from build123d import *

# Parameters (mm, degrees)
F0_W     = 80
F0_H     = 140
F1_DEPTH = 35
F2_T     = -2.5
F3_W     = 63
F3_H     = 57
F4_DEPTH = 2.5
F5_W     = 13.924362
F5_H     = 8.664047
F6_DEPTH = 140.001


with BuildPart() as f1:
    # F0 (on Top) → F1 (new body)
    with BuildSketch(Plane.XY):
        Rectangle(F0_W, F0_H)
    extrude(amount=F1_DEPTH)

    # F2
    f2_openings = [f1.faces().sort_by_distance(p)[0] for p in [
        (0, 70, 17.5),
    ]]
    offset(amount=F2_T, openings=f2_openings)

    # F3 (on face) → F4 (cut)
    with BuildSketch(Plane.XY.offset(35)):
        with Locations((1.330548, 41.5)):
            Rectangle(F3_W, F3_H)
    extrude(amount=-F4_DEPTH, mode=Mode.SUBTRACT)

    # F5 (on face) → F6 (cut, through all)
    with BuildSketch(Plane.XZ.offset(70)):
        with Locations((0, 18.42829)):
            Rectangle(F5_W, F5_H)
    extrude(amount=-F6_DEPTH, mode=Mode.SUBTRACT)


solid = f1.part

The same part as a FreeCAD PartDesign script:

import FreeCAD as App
import Part
import Sketcher

V = App.Vector


def faces_at(feature, points):
    """Names of the faces that lie closest to the given points."""
    faces = feature.Shape.Faces
    near = lambda p: min(range(len(faces)), key=lambda i: faces[i].distToShape(Part.Vertex(*p))[0])
    return sorted({f"Face{near(p) + 1}" for p in points})

doc = App.newDocument("Part")
body = doc.addObject("PartDesign::Body", "Body")

sketch1 = body.newObject("Sketcher::SketchObject", "Sketch")
sketch1.AttachmentSupport = (doc.getObject("XY_Plane"), [""])
sketch1.MapMode = "FlatFace"
sketch1.addGeometry([
    Part.LineSegment(V(-40, 70, 0), V(-40, -70, 0)),
    Part.LineSegment(V(-40, -70, 0), V(40, -70, 0)),
    Part.LineSegment(V(40, -70, 0), V(40, 70, 0)),
    Part.LineSegment(V(40, 70, 0), V(-40, 70, 0)),
], False)
sketch1.addConstraint([
    Sketcher.Constraint("Coincident", 0, 2, 1, 1),
    Sketcher.Constraint("Coincident", 1, 2, 2, 1),
    Sketcher.Constraint("Coincident", 2, 2, 3, 1),
    Sketcher.Constraint("Coincident", 3, 2, 0, 1),
    Sketcher.Constraint("Vertical", 0),
    Sketcher.Constraint("Horizontal", 1),
    Sketcher.Constraint("Vertical", 2),
    Sketcher.Constraint("Horizontal", 3),
    Sketcher.Constraint("Symmetric", 0, 2, 2, 2, -1, 1),
    Sketcher.Constraint("DistanceX", 1, 1, 1, 2, 80.0),
    Sketcher.Constraint("DistanceY", 0, 2, 0, 1, 140.0),
])
pad1 = body.newObject("PartDesign::Pad", "Pad")
pad1.Profile = sketch1
pad1.Length = 35
doc.recompute()

thickness = body.newObject("PartDesign::Thickness", "Thickness")
thickness.Base = (pad1, faces_at(pad1, [(0, 70, 17.5)]))
thickness.Value = 2.5
thickness.Reversed = True
thickness.Join = "Arc"

sketch2 = body.newObject("Sketcher::SketchObject", "Sketch001")
sketch2.AttachmentSupport = (doc.getObject("XY_Plane"), [""])
sketch2.MapMode = "FlatFace"
sketch2.AttachmentOffset = App.Placement(V(0, 0, 35), App.Rotation())
sketch2.addGeometry([
    Part.LineSegment(V(-30, 70, 0), V(-30, 13, 0)),
    Part.LineSegment(V(-30, 13, 0), V(33, 13, 0)),
    Part.LineSegment(V(33, 13, 0), V(33, 70, 0)),
    Part.LineSegment(V(33, 70, 0), V(-30, 70, 0)),
], False)
sketch2.addConstraint([
    Sketcher.Constraint("Coincident", 0, 2, 1, 1),
    Sketcher.Constraint("Coincident", 1, 2, 2, 1),
    Sketcher.Constraint("Coincident", 2, 2, 3, 1),
    Sketcher.Constraint("Coincident", 3, 2, 0, 1),
    Sketcher.Constraint("Vertical", 0),
    Sketcher.Constraint("Horizontal", 1),
    Sketcher.Constraint("Vertical", 2),
    Sketcher.Constraint("Horizontal", 3),
    Sketcher.Constraint("DistanceX", 1, 1, 1, 2, 63.0),
    Sketcher.Constraint("DistanceY", 0, 2, 0, 1, 57.0),
    Sketcher.Constraint("DistanceY", -1, 1, 0, 2, 13.0),
    Sketcher.Constraint("DistanceX", 0, 2, -1, 1, 30.169452),
])
pocket1 = body.newObject("PartDesign::Pocket", "Pocket")
pocket1.Profile = sketch2
pocket1.Length = 2.5

sketch3 = body.newObject("Sketcher::SketchObject", "Sketch002")
sketch3.AttachmentSupport = (doc.getObject("XZ_Plane"), [""])
sketch3.MapMode = "FlatFace"
sketch3.AttachmentOffset = App.Placement(V(0, 0, 70), App.Rotation())
sketch3.addGeometry([
    Part.LineSegment(V(-7, 23, 0), V(-7, 14, 0)),
    Part.LineSegment(V(-7, 14, 0), V(7, 14, 0)),
    Part.LineSegment(V(7, 14, 0), V(7, 23, 0)),
    Part.LineSegment(V(7, 23, 0), V(-7, 23, 0)),
], False)
sketch3.addConstraint([
    Sketcher.Constraint("Coincident", 0, 2, 1, 1),
    Sketcher.Constraint("Coincident", 1, 2, 2, 1),
    Sketcher.Constraint("Coincident", 2, 2, 3, 1),
    Sketcher.Constraint("Coincident", 3, 2, 0, 1),
    Sketcher.Constraint("Vertical", 0),
    Sketcher.Constraint("Horizontal", 1),
    Sketcher.Constraint("Vertical", 2),
    Sketcher.Constraint("Horizontal", 3),
    Sketcher.Constraint("DistanceX", 1, 1, 1, 2, 13.924362),
    Sketcher.Constraint("DistanceY", 0, 2, 0, 1, 8.664047),
    Sketcher.Constraint("DistanceX", 0, 2, -1, 1, 6.962181),
    Sketcher.Constraint("DistanceY", -1, 1, 0, 2, 14.096267),
])
pocket2 = body.newObject("PartDesign::Pocket", "Pocket001")
pocket2.Profile = sketch3
pocket2.Type = "ThroughAll"

doc.recompute()
